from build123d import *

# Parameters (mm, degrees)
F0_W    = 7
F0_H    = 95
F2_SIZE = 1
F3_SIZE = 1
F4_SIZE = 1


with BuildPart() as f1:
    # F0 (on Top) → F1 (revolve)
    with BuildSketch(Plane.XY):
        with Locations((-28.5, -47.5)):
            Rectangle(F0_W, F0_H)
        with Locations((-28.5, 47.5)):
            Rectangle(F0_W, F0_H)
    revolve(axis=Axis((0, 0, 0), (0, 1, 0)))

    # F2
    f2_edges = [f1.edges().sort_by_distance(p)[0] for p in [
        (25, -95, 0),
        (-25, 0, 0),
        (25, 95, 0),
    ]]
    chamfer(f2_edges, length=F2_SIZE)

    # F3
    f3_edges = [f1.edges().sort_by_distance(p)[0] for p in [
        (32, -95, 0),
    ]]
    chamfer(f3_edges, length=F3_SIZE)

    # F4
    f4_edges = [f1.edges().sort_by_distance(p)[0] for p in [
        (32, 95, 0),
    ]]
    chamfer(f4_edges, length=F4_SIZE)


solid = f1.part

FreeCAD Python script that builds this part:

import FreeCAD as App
import Part
import Sketcher

V = App.Vector
Q = App.Units.Quantity


def edges_at(feature, points):
    """Names of the edges that pass closest to the given points."""
    edges = feature.Shape.Edges
    near = lambda p: min(range(len(edges)), key=lambda i: edges[i].distToShape(Part.Vertex(*p))[0])
    return sorted({f"Edge{near(p) + 1}" for p in points})

doc = App.newDocument("Part")
body = doc.addObject("PartDesign::Body", "Body")

sketch1 = body.newObject("Sketcher::SketchObject", "Sketch")
sketch1.AttachmentSupport = (doc.getObject("XY_Plane"), [""])
sketch1.MapMode = "FlatFace"
sketch1.addGeometry([
    Part.LineSegment(V(-32, -95, 0), V(-25, -95, 0)),
    Part.LineSegment(V(-25, -95, 0), V(-25, 95, 0)),
    Part.LineSegment(V(-25, 95, 0), V(-32, 95, 0)),
    Part.LineSegment(V(-32, 95, 0), V(-32, -95, 0)),
], False)
sketch1.addConstraint([
    Sketcher.Constraint("Coincident", 0, 2, 1, 1),
    Sketcher.Constraint("Coincident", 1, 2, 2, 1),
    Sketcher.Constraint("Coincident", 2, 2, 3, 1),
    Sketcher.Constraint("Coincident", 3, 2, 0, 1),
    Sketcher.Constraint("Horizontal", 0),
    Sketcher.Constraint("Vertical", 1),
    Sketcher.Constraint("Horizontal", 2),
    Sketcher.Constraint("Vertical", 3),
    Sketcher.Constraint("DistanceX", 0, 1, 0, 2, Q("7 mm")),
    Sketcher.Constraint("DistanceY", 1, 1, 1, 2, Q("190 mm")),
    Sketcher.Constraint("DistanceX", 0, 2, -1, 1, Q("25 mm")),
    Sketcher.Constraint("DistanceY", 0, 2, -1, 1, Q("95 mm")),
])
revolution = body.newObject("PartDesign::Revolution", "Revolution")
revolution.Profile = sketch1
revolution.ReferenceAxis = (sketch1, ["V_Axis"])
revolution.Angle = 360
doc.recompute()

chamfer = body.newObject("PartDesign::Chamfer", "Chamfer")
chamfer.Base = (revolution, edges_at(revolution, [(25, -95, 0), (-25, 0, 0), (25, 95, 0)]))
chamfer.Size = 1
doc.recompute()

chamfer2 = body.newObject("PartDesign::Chamfer", "Chamfer001")
chamfer2.Base = (chamfer, edges_at(chamfer, [(32, -95, 0)]))
chamfer2.Size = 1
doc.recompute()

chamfer3 = body.newObject("PartDesign::Chamfer", "Chamfer002")
chamfer3.Base = (chamfer2, edges_at(chamfer2, [(32, 95, 0)]))
chamfer3.Size = 1

doc.recompute()
